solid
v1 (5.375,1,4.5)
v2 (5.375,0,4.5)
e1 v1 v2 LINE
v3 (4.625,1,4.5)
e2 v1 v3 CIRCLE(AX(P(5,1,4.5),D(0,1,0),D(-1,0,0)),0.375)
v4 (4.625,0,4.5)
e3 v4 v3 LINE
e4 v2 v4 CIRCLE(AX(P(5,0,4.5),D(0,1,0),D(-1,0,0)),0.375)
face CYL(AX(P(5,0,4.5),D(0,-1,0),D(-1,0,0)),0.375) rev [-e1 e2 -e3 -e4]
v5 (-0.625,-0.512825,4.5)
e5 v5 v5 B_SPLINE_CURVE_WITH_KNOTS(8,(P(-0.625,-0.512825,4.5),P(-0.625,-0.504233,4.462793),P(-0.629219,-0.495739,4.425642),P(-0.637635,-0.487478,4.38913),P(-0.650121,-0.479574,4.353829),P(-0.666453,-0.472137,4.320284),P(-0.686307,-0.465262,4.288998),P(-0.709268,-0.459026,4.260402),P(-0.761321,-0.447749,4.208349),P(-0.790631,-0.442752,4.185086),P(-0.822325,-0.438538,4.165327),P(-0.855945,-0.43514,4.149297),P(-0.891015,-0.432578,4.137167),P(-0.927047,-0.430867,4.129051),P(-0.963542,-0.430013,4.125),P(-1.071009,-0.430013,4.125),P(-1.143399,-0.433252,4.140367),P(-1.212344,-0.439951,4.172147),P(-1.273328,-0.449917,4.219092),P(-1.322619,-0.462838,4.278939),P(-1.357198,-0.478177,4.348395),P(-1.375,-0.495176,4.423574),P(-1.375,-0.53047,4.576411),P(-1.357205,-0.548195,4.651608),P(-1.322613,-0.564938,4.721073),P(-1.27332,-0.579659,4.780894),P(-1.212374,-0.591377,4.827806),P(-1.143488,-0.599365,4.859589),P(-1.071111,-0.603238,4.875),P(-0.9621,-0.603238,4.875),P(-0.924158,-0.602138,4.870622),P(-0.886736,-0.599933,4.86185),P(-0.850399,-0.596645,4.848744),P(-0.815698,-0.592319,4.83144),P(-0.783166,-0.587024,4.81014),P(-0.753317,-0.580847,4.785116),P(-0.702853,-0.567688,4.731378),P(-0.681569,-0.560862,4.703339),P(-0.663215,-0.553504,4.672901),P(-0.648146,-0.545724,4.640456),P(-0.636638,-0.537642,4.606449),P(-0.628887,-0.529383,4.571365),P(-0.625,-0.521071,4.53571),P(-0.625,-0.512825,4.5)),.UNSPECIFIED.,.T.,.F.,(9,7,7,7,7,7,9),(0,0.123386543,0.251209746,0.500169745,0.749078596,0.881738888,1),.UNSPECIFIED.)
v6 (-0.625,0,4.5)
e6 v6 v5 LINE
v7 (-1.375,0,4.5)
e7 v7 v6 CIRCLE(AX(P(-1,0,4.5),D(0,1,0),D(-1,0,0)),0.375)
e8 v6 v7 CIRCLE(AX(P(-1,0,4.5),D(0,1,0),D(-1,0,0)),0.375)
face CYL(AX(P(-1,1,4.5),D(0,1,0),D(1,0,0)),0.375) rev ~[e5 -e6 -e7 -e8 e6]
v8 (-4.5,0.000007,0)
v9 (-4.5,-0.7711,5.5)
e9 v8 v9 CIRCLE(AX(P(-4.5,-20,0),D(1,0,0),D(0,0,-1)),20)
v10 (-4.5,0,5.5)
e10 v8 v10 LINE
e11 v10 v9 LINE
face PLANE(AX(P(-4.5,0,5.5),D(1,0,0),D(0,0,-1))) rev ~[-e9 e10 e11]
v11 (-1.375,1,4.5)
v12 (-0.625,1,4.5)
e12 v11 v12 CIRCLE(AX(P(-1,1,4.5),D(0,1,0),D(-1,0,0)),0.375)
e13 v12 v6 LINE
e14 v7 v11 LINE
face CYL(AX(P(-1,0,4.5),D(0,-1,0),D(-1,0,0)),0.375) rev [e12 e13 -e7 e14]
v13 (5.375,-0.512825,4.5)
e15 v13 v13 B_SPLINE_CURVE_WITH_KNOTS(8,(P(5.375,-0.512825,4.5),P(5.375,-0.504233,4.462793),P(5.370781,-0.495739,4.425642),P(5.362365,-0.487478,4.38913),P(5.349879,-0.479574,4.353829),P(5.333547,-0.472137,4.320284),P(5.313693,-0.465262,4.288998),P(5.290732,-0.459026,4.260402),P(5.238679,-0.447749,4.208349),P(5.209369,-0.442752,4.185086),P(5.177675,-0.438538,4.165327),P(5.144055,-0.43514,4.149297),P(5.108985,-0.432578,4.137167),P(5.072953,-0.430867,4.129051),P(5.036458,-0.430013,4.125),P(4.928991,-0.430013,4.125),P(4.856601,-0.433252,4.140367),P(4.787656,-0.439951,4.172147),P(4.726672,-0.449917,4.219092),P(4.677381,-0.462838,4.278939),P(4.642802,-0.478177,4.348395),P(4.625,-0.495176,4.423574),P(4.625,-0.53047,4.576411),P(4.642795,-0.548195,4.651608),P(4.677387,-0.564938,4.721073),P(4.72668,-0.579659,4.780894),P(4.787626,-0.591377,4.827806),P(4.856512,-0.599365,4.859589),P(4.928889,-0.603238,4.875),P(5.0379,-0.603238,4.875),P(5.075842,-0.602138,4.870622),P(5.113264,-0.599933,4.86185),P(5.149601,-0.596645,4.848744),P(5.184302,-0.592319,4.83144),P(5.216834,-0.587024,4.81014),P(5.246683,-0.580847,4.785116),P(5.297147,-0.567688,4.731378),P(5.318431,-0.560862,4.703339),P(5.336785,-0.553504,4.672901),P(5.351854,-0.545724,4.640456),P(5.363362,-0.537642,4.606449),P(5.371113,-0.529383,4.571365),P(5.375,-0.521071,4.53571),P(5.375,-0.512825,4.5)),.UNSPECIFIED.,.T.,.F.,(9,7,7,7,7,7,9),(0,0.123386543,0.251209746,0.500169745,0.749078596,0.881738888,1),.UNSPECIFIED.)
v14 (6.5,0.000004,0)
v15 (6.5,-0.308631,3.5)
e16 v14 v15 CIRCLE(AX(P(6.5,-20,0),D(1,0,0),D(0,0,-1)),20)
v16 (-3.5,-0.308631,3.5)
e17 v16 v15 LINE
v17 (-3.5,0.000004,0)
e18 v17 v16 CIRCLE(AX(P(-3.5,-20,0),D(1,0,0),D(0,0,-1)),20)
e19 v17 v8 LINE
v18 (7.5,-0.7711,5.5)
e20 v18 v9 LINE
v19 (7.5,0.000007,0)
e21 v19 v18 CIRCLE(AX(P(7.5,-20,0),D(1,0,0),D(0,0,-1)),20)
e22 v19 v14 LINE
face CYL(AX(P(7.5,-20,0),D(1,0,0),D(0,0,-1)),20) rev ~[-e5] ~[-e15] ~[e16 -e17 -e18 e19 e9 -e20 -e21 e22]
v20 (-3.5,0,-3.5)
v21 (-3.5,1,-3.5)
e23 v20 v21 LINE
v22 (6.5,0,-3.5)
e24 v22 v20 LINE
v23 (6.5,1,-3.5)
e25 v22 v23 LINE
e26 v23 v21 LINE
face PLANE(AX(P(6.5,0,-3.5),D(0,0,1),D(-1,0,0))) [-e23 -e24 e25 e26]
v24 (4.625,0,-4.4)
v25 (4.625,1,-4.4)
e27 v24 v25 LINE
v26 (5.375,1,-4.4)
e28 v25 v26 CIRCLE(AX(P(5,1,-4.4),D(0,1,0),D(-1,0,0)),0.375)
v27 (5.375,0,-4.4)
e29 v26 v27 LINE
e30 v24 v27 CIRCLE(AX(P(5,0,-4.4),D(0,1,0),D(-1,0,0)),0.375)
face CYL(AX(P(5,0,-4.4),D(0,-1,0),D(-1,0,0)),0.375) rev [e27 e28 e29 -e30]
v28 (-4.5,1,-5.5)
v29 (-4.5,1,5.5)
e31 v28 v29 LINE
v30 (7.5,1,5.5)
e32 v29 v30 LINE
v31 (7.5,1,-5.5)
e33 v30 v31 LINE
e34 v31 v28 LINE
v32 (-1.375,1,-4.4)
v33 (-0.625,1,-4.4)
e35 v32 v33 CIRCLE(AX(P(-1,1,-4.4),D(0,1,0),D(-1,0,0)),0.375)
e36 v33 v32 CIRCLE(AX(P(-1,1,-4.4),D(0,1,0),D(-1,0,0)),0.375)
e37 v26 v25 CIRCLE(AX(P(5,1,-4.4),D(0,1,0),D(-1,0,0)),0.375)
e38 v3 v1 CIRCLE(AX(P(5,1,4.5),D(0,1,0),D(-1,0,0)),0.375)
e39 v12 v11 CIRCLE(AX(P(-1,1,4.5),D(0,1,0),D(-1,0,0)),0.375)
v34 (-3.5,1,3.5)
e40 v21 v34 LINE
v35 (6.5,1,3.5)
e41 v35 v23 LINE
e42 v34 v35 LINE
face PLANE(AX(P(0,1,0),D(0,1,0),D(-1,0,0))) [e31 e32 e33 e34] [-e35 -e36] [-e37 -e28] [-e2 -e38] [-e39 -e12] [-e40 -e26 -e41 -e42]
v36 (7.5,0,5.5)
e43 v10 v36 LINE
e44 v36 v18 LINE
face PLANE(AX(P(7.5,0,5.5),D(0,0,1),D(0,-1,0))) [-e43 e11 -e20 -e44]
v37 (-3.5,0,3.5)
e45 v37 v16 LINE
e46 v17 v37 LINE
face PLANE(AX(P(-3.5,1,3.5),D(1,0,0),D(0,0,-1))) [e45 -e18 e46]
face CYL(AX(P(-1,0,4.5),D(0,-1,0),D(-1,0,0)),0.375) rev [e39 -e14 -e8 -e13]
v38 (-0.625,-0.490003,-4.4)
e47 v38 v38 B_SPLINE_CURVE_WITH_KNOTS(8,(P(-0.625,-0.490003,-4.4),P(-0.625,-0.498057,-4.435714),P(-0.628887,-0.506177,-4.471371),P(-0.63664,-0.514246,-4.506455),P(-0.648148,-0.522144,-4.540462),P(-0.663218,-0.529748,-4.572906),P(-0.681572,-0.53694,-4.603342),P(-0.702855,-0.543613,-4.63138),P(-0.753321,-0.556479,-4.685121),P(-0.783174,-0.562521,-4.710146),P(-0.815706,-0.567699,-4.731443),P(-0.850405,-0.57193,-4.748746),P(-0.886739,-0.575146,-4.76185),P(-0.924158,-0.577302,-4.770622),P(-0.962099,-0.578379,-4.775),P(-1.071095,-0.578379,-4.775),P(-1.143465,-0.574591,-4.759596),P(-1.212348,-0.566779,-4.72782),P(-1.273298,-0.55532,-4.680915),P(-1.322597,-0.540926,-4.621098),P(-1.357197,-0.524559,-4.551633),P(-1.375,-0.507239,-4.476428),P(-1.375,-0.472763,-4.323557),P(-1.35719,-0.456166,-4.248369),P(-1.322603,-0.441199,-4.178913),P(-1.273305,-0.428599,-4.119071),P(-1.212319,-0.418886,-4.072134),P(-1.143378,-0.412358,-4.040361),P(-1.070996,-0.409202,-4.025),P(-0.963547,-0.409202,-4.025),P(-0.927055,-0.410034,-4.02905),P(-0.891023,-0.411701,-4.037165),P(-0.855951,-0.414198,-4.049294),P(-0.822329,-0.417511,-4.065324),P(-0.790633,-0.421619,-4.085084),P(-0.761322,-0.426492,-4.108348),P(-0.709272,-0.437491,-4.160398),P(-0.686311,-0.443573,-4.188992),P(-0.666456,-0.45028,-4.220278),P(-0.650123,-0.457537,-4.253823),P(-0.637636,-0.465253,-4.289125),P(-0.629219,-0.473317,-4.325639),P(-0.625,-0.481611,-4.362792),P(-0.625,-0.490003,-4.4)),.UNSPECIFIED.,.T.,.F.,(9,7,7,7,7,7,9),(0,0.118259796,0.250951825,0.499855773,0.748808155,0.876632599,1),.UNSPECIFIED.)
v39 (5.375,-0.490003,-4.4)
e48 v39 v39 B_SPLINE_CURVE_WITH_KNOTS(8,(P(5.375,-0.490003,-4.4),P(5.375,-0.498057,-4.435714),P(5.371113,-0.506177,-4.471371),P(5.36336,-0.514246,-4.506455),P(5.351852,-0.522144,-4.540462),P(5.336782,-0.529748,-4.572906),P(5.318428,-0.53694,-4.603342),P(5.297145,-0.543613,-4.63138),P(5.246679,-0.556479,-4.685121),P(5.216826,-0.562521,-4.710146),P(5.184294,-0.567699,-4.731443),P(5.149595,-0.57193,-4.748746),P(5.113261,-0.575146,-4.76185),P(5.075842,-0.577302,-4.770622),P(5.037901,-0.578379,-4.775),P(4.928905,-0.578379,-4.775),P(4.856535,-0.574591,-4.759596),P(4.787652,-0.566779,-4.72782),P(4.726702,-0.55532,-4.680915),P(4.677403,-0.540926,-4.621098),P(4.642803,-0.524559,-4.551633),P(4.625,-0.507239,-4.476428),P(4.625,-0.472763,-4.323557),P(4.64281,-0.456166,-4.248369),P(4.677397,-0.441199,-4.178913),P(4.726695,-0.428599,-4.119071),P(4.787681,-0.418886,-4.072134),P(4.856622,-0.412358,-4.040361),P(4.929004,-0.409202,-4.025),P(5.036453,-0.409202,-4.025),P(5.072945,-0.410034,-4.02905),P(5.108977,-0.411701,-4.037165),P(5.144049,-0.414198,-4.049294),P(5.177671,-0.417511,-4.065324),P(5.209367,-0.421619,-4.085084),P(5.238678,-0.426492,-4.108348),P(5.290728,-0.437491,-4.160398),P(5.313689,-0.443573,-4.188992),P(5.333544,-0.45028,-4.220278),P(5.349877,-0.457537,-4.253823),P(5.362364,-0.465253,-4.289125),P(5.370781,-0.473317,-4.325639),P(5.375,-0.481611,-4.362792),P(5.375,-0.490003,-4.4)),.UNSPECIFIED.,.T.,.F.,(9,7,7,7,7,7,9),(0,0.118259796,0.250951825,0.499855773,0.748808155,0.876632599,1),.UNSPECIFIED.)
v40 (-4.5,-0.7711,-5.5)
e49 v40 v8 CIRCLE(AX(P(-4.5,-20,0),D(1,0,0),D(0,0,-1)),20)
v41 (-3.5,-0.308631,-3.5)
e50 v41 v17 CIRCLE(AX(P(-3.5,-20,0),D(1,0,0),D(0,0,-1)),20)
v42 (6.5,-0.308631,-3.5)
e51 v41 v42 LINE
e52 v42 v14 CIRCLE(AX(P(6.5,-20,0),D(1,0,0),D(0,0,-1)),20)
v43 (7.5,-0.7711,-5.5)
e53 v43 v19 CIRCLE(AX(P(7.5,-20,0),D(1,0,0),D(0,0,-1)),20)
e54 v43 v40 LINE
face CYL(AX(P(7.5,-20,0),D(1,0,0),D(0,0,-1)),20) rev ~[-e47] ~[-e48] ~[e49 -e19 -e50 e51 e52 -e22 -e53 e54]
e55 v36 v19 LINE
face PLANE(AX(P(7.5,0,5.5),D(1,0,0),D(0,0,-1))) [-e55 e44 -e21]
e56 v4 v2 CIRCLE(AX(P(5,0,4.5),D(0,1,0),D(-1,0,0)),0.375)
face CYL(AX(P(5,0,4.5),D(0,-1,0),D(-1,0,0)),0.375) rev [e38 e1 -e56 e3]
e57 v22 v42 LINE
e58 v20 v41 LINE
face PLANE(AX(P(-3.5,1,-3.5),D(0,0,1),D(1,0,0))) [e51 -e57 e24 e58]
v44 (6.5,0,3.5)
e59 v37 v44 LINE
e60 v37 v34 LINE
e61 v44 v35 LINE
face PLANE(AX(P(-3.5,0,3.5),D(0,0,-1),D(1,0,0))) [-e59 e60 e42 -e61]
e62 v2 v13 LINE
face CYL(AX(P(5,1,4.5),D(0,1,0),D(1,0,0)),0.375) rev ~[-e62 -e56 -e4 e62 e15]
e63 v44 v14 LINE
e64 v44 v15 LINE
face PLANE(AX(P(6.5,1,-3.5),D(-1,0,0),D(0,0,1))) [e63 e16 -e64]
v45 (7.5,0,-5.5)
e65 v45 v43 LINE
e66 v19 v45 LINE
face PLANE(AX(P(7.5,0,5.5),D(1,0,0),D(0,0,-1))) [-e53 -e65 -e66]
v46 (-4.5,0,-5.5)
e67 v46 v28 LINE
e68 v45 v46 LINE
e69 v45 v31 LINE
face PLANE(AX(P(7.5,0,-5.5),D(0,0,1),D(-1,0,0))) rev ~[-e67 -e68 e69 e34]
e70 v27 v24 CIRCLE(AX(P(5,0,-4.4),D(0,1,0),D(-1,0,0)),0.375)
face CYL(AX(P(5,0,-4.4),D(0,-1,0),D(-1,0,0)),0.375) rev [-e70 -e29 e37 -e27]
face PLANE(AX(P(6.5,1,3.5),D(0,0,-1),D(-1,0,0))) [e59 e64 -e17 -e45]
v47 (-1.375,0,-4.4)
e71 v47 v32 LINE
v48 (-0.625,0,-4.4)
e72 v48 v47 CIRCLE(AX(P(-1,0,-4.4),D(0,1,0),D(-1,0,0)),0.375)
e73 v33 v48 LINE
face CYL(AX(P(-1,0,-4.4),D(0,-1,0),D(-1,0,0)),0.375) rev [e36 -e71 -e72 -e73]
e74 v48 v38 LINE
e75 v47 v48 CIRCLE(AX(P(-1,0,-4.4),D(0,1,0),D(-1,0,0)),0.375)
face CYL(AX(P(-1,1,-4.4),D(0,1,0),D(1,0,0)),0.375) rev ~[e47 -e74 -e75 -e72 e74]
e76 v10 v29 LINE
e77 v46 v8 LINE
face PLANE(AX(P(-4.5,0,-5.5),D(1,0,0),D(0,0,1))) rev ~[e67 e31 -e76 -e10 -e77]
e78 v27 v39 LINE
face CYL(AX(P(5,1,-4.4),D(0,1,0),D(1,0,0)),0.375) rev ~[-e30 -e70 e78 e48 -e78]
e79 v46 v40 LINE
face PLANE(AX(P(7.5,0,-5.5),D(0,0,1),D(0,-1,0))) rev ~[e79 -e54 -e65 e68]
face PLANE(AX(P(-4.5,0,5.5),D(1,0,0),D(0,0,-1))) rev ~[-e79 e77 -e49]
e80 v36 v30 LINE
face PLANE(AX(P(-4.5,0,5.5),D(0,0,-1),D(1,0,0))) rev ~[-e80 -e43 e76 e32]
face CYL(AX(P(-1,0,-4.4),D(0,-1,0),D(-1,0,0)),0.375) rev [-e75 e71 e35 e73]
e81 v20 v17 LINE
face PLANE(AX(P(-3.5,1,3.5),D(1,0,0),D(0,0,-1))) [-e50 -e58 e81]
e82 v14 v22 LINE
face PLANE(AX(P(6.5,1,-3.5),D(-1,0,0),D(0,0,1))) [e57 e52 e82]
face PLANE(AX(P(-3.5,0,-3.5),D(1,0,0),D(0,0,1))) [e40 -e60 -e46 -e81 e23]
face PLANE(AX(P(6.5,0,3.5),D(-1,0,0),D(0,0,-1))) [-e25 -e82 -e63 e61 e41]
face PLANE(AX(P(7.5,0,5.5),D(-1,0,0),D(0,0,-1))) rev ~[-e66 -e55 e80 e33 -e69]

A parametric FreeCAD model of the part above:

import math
import FreeCAD as App
import Part
import Sketcher

V = App.Vector

doc = App.newDocument("Part")
params = doc.addObject("Spreadsheet::Sheet", "Params")
for row, (alias, value) in enumerate([
    ("sketch1_diameter", "0.75 mm"),
    ("sketch1_width", "12 mm"),
    ("sketch1_width2", "10 mm"),
    ("sketch1_height", "11 mm"),
    ("sketch1_height2", "7 mm"),
    ("pad1_length", "1 mm"),
    ("sketch2_radius", "20 mm"),
    ("sketch2_height", "5.5 mm"),
    ("pad2_length", "12 mm"),
    ("sketch3_diameter", "0.75 mm"),
    ("sketch3_width", "10 mm"),
    ("sketch3_height", "7 mm"),
], start=1):
    params.set(f"A{row}", alias)
    params.set(f"B{row}", "=" + value)
    params.setAlias(f"B{row}", alias)

body = doc.addObject("PartDesign::Body", "Body")

# Sketch on XZ plane
sketch1 = body.newObject("Sketcher::SketchObject", "Sketch")
sketch1.AttachmentSupport = (doc.getObject("XZ_Plane"), [""])
sketch1.MapMode = "FlatFace"
sketch1.addGeometry([
    Part.LineSegment(V(-4.5, -5.5, 0), V(-4.5, 5.5, 0)),  # 0
    Part.LineSegment(V(-4.5, 5.5, 0), V(7.5, 5.5, 0)),  # 1
    Part.LineSegment(V(7.5, 5.5, 0), V(7.5, -5.5, 0)),  # 2
    Part.LineSegment(V(7.5, -5.5, 0), V(-4.5, -5.5, 0)),  # 3
    Part.Circle(V(5, -4.4, 0), V(0, 0, 1), 0.375),  # 4
    Part.Circle(V(-1, -4.4, 0), V(0, 0, 1), 0.375),  # 5
    Part.Circle(V(5, 4.5, 0), V(0, 0, 1), 0.375),  # 6
    Part.LineSegment(V(6.5, 3.5, 0), V(-3.5, 3.5, 0)),  # 7
    Part.LineSegment(V(-3.5, 3.5, 0), V(-3.5, -3.5, 0)),  # 8
    Part.LineSegment(V(-3.5, -3.5, 0), V(6.5, -3.5, 0)),  # 9
    Part.LineSegment(V(6.5, -3.5, 0), V(6.5, 3.5, 0)),  # 10
    Part.Circle(V(-1, 4.5, 0), V(0, 0, 1), 0.375),  # 11
], False)
sketch1.addConstraint([
    Sketcher.Constraint("Coincident", 0, 2, 1, 1),
    Sketcher.Constraint("Coincident", 1, 2, 2, 1),
    Sketcher.Constraint("Coincident", 2, 2, 3, 1),
    Sketcher.Constraint("Coincident", 3, 2, 0, 1),
    Sketcher.Constraint("Coincident", 7, 2, 8, 1),
    Sketcher.Constraint("Coincident", 8, 2, 9, 1),
    Sketcher.Constraint("Coincident", 9, 2, 10, 1),
    Sketcher.Constraint("Coincident", 10, 2, 7, 1),
    Sketcher.Constraint("Vertical", 0),
    Sketcher.Constraint("Horizontal", 1),
    Sketcher.Constraint("Vertical", 2),
    Sketcher.Constraint("Horizontal", 3),
    Sketcher.Constraint("Horizontal", 7),
    Sketcher.Constraint("Vertical", 8),
    Sketcher.Constraint("Horizontal", 9),
    Sketcher.Constraint("Vertical", 10),
    Sketcher.Constraint("Equal", 4, 5),
    Sketcher.Constraint("Equal", 5, 6),
    Sketcher.Constraint("Equal", 6, 11),
    Sketcher.Constraint("Horizontal", 4, 3, 5, 3),
    Sketcher.Constraint("Horizontal", 6, 3, 11, 3),
    Sketcher.Constraint("Vertical", 4, 3, 6, 3),
    Sketcher.Constraint("Vertical", 5, 3, 11, 3),
    Sketcher.Constraint("Diameter", 4, 0.75),
    Sketcher.Constraint("DistanceX", 1, 1, 1, 2, 12.0),
    Sketcher.Constraint("DistanceX", 7, 2, 7, 1, 10.0),
    Sketcher.Constraint("DistanceY", 0, 1, 0, 2, 11.0),
    Sketcher.Constraint("DistanceY", 8, 2, 8, 1, 7.0),
    Sketcher.Constraint("DistanceX", 5, 3, -1, 1, 1.0),
    Sketcher.Constraint("DistanceX", 5, 3, 4, 3, 6.0),
    Sketcher.Constraint("DistanceY", 11, 3, 0, 2, 1.0),
    Sketcher.Constraint("DistanceX", 0, 2, 7, 2, 1.0),
    Sketcher.Constraint("DistanceY", 7, 2, 0, 2, 2.0),
    Sketcher.Constraint("DistanceY", -1, 1, 0, 2, 5.5),
    Sketcher.Constraint("DistanceX", -1, 1, 1, 2, 7.5),
    Sketcher.Constraint("DistanceY", 4, 3, 6, 3, 8.9),
])
sketch1.setExpression("Constraints[23]", "Params.sketch1_diameter")
sketch1.setExpression("Constraints[24]", "Params.sketch1_width")
sketch1.setExpression("Constraints[25]", "Params.sketch1_width2")
sketch1.setExpression("Constraints[26]", "Params.sketch1_height")
sketch1.setExpression("Constraints[27]", "Params.sketch1_height2")
pad1 = body.newObject("PartDesign::Pad", "Pad")
pad1.Profile = sketch1
pad1.setExpression("Length", "Params.pad1_length")
pad1.Reversed = True

# Sketch on YZ plane
sketch2 = body.newObject("Sketcher::SketchObject", "Sketch001")
sketch2.AttachmentSupport = (doc.getObject("YZ_Plane"), [""])
sketch2.MapMode = "FlatFace"
sketch2.AttachmentOffset = App.Placement(V(0, 0, 7.5), App.Rotation())
sketch2.addGeometry([
    Part.ArcOfCircle(Part.Circle(V(-20, 0, 0), V(0, 0, 1), 20), math.radians(-15.962002), math.radians(0)),  # 0
    Part.LineSegment(V(-0.7711, -5.5, 0), V(0, -5.5, 0)),  # 1
    Part.LineSegment(V(0, -5.5, 0), V(0, 0, 0)),  # 2
    Part.LineSegment(V(0, 5.5, 0), V(-0.7711, 5.5, 0)),  # 3
    Part.ArcOfCircle(Part.Circle(V(-20, 0, 0), V(0, 0, 1), 20), math.radians(0), math.radians(15.962002)),  # 4
    Part.LineSegment(V(0, 0, 0), V(0, 5.5, 0)),  # 5
], False)
sketch2.addConstraint([
    Sketcher.Constraint("Coincident", 0, 1, 1, 1),
    Sketcher.Constraint("Coincident", 1, 2, 2, 1),
    Sketcher.Constraint("Tangent", 2, 2, 0, 2),
    Sketcher.Constraint("Coincident", 3, 2, 4, 2),
    Sketcher.Constraint("Tangent", 4, 1, 5, 1),
    Sketcher.Constraint("Coincident", 5, 2, 3, 1),
    Sketcher.Constraint("Horizontal", 1),
    Sketcher.Constraint("Vertical", 2),
    Sketcher.Constraint("Horizontal", 3),
    Sketcher.Constraint("Vertical", 5),
    Sketcher.Constraint("Coincident", 2, 2, -1, 1),
    Sketcher.Constraint("Coincident", 4, 1, -1, 1),
    Sketcher.Constraint("Equal", 0, 4),
    Sketcher.Constraint("Vertical", 0, 1, 3, 2),
    Sketcher.Constraint("Radius", 0, 20.0),
    Sketcher.Constraint("DistanceY", 2, 1, 2, 2, 5.5),
])
sketch2.setExpression("Constraints[14]", "Params.sketch2_radius")
sketch2.setExpression("Constraints[15]", "Params.sketch2_height")
pad2 = body.newObject("PartDesign::Pad", "Pad001")
pad2.Profile = sketch2
pad2.setExpression("Length", "Params.pad2_length")
pad2.Reversed = True

# Sketch on XZ plane
sketch3 = body.newObject("Sketcher::SketchObject", "Sketch002")
sketch3.AttachmentSupport = (doc.getObject("XZ_Plane"), [""])
sketch3.MapMode = "FlatFace"
sketch3.AttachmentOffset = App.Placement(V(0, 0, -1), App.Rotation())
sketch3.addGeometry([
    Part.Circle(V(5, -4.4, 0), V(0, 0, 1), 0.375),  # 0
    Part.Circle(V(5, 4.5, 0), V(0, 0, 1), 0.375),  # 1
    Part.Circle(V(-1, 4.5, 0), V(0, 0, 1), 0.375),  # 2
    Part.Circle(V(-1, -4.4, 0), V(0, 0, 1), 0.375),  # 3
    Part.LineSegment(V(6.5, 3.5, 0), V(6.5, -3.5, 0)),  # 4
    Part.LineSegment(V(6.5, -3.5, 0), V(-3.5, -3.5, 0)),  # 5
    Part.LineSegment(V(-3.5, -3.5, 0), V(-3.5, 3.5, 0)),  # 6
    Part.LineSegment(V(-3.5, 3.5, 0), V(6.5, 3.5, 0)),  # 7
], False)
sketch3.addConstraint([
    Sketcher.Constraint("Coincident", 4, 2, 5, 1),
    Sketcher.Constraint("Coincident", 5, 2, 6, 1),
    Sketcher.Constraint("Coincident", 6, 2, 7, 1),
    Sketcher.Constraint("Coincident", 7, 2, 4, 1),
    Sketcher.Constraint("Vertical", 4),
    Sketcher.Constraint("Horizontal", 5),
    Sketcher.Constraint("Vertical", 6),
    Sketcher.Constraint("Horizontal", 7),
    Sketcher.Constraint("Equal", 0, 1),
    Sketcher.Constraint("Equal", 1, 2),
    Sketcher.Constraint("Equal", 2, 3),
    Sketcher.Constraint("Horizontal", 1, 3, 2, 3),
    Sketcher.Constraint("Horizontal", 0, 3, 3, 3),
    Sketcher.Constraint("Vertical", 0, 3, 1, 3),
    Sketcher.Constraint("Vertical", 2, 3, 3, 3),
    Sketcher.Constraint("Diameter", 0, 0.75),
    Sketcher.Constraint("DistanceX", 5, 2, 5, 1, 10.0),
    Sketcher.Constraint("DistanceY", 4, 2, 4, 1, 7.0),
    Sketcher.Constraint("DistanceX", -1, 1, 0, 3, 5.0),
    Sketcher.Constraint("DistanceX", 2, 3, -1, 1, 1.0),
    Sketcher.Constraint("DistanceY", 4, 2, 1, 3, 8.0),
    Sketcher.Constraint("DistanceY", 0, 3, -1, 1, 4.4),
    Sketcher.Constraint("DistanceY", -1, 1, 1, 3, 4.5),
    Sketcher.Constraint("DistanceX", -1, 1, 4, 2, 6.5),
])
sketch3.setExpression("Constraints[15]", "Params.sketch3_diameter")
sketch3.setExpression("Constraints[16]", "Params.sketch3_width")
sketch3.setExpression("Constraints[17]", "Params.sketch3_height")
pocket1 = body.newObject("PartDesign::Pocket", "Pocket")
pocket1.Profile = sketch3
pocket1.Type = "ThroughAll"
pocket1.Reversed = True

doc.recompute()
